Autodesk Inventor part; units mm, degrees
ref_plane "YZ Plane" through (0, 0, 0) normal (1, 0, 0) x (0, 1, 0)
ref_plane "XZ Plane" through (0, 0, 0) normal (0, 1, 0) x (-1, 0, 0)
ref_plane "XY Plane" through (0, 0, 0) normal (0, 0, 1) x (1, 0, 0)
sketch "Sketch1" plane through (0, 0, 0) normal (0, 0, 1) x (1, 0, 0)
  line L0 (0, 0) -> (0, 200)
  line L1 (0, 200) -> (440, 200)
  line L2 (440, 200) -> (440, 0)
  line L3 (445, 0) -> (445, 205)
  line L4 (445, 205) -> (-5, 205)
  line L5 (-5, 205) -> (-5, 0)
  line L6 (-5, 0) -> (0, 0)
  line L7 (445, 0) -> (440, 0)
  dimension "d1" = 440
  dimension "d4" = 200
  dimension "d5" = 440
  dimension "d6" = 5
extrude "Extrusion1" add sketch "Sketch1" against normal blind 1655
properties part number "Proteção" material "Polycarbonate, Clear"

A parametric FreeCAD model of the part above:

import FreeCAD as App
import Part
import Sketcher
from FreeCAD import Vector
Q = App.Units.Quantity

doc = App.newDocument("Part")
params = doc.addObject("Spreadsheet::Sheet", "Params")
for row, (alias, value) in enumerate([
    ("sketch1_width", "5 mm"),
    ("sketch1_width2", "440 mm"),
    ("sketch1_height", "200 mm"),
    ("pad1_length", "1655 mm"),
], start=1):
    params.set(f"A{row}", alias)
    params.set(f"B{row}", "=" + value)
    params.setAlias(f"B{row}", alias)

body = doc.addObject("PartDesign::Body", "Body")

# Sketch on XY plane
sketch1 = body.newObject("Sketcher::SketchObject", "Sketch")
sketch1.AttachmentSupport = (doc.getObject("XY_Plane"), [""])
sketch1.MapMode = "FlatFace"
sketch1.addGeometry([
    Part.LineSegment(Vector(-5, 0, 0), Vector(0, 0, 0)),  # 0
    Part.LineSegment(Vector(0, 0, 0), Vector(0, 200, 0)),  # 1
    Part.LineSegment(Vector(0, 200, 0), Vector(440, 200, 0)),  # 2
    Part.LineSegment(Vector(440, 200, 0), Vector(440, 0, 0)),  # 3
    Part.LineSegment(Vector(440, 0, 0), Vector(445, 0, 0)),  # 4
    Part.LineSegment(Vector(445, 0, 0), Vector(445, 205, 0)),  # 5
    Part.LineSegment(Vector(445, 205, 0), Vector(-5, 205, 0)),  # 6
    Part.LineSegment(Vector(-5, 205, 0), Vector(-5, 0, 0)),  # 7
], False)
sketch1.addConstraint([
    Sketcher.Constraint("Coincident", 0, 2, 1, 1),
    Sketcher.Constraint("Coincident", 1, 2, 2, 1),
    Sketcher.Constraint("Coincident", 2, 2, 3, 1),
    Sketcher.Constraint("Coincident", 3, 2, 4, 1),
    Sketcher.Constraint("Coincident", 4, 2, 5, 1),
    Sketcher.Constraint("Coincident", 5, 2, 6, 1),
    Sketcher.Constraint("Coincident", 6, 2, 7, 1),
    Sketcher.Constraint("Coincident", 7, 2, 0, 1),
    Sketcher.Constraint("Horizontal", 0),
    Sketcher.Constraint("Vertical", 1),
    Sketcher.Constraint("Horizontal", 2),
    Sketcher.Constraint("Vertical", 3),
    Sketcher.Constraint("Horizontal", 4),
    Sketcher.Constraint("Vertical", 5),
    Sketcher.Constraint("Horizontal", 6),
    Sketcher.Constraint("Vertical", 7),
    Sketcher.Constraint("Coincident", 0, 2, -1, 1),
    Sketcher.Constraint("PointOnObject", 3, 2, -1),
    Sketcher.Constraint("Equal", 0, 4),
    Sketcher.Constraint("DistanceX", 0, 1, 0, 2, Q("5 mm")),
    Sketcher.Constraint("DistanceX", 2, 1, 2, 2, Q("440 mm")),
    Sketcher.Constraint("DistanceY", 1, 1, 1, 2, Q("200 mm")),
    Sketcher.Constraint("DistanceY", 2, 2, 5, 2, Q("5 mm")),
])
sketch1.setExpression("Constraints[19]", "Params.sketch1_width")
sketch1.setExpression("Constraints[20]", "Params.sketch1_width2")
sketch1.setExpression("Constraints[21]", "Params.sketch1_height")
pad1 = body.newObject("PartDesign::Pad", "Pad")
pad1.Profile = sketch1
pad1.setExpression("Length", "Params.pad1_length")
pad1.Reversed = True

doc.recompute()
